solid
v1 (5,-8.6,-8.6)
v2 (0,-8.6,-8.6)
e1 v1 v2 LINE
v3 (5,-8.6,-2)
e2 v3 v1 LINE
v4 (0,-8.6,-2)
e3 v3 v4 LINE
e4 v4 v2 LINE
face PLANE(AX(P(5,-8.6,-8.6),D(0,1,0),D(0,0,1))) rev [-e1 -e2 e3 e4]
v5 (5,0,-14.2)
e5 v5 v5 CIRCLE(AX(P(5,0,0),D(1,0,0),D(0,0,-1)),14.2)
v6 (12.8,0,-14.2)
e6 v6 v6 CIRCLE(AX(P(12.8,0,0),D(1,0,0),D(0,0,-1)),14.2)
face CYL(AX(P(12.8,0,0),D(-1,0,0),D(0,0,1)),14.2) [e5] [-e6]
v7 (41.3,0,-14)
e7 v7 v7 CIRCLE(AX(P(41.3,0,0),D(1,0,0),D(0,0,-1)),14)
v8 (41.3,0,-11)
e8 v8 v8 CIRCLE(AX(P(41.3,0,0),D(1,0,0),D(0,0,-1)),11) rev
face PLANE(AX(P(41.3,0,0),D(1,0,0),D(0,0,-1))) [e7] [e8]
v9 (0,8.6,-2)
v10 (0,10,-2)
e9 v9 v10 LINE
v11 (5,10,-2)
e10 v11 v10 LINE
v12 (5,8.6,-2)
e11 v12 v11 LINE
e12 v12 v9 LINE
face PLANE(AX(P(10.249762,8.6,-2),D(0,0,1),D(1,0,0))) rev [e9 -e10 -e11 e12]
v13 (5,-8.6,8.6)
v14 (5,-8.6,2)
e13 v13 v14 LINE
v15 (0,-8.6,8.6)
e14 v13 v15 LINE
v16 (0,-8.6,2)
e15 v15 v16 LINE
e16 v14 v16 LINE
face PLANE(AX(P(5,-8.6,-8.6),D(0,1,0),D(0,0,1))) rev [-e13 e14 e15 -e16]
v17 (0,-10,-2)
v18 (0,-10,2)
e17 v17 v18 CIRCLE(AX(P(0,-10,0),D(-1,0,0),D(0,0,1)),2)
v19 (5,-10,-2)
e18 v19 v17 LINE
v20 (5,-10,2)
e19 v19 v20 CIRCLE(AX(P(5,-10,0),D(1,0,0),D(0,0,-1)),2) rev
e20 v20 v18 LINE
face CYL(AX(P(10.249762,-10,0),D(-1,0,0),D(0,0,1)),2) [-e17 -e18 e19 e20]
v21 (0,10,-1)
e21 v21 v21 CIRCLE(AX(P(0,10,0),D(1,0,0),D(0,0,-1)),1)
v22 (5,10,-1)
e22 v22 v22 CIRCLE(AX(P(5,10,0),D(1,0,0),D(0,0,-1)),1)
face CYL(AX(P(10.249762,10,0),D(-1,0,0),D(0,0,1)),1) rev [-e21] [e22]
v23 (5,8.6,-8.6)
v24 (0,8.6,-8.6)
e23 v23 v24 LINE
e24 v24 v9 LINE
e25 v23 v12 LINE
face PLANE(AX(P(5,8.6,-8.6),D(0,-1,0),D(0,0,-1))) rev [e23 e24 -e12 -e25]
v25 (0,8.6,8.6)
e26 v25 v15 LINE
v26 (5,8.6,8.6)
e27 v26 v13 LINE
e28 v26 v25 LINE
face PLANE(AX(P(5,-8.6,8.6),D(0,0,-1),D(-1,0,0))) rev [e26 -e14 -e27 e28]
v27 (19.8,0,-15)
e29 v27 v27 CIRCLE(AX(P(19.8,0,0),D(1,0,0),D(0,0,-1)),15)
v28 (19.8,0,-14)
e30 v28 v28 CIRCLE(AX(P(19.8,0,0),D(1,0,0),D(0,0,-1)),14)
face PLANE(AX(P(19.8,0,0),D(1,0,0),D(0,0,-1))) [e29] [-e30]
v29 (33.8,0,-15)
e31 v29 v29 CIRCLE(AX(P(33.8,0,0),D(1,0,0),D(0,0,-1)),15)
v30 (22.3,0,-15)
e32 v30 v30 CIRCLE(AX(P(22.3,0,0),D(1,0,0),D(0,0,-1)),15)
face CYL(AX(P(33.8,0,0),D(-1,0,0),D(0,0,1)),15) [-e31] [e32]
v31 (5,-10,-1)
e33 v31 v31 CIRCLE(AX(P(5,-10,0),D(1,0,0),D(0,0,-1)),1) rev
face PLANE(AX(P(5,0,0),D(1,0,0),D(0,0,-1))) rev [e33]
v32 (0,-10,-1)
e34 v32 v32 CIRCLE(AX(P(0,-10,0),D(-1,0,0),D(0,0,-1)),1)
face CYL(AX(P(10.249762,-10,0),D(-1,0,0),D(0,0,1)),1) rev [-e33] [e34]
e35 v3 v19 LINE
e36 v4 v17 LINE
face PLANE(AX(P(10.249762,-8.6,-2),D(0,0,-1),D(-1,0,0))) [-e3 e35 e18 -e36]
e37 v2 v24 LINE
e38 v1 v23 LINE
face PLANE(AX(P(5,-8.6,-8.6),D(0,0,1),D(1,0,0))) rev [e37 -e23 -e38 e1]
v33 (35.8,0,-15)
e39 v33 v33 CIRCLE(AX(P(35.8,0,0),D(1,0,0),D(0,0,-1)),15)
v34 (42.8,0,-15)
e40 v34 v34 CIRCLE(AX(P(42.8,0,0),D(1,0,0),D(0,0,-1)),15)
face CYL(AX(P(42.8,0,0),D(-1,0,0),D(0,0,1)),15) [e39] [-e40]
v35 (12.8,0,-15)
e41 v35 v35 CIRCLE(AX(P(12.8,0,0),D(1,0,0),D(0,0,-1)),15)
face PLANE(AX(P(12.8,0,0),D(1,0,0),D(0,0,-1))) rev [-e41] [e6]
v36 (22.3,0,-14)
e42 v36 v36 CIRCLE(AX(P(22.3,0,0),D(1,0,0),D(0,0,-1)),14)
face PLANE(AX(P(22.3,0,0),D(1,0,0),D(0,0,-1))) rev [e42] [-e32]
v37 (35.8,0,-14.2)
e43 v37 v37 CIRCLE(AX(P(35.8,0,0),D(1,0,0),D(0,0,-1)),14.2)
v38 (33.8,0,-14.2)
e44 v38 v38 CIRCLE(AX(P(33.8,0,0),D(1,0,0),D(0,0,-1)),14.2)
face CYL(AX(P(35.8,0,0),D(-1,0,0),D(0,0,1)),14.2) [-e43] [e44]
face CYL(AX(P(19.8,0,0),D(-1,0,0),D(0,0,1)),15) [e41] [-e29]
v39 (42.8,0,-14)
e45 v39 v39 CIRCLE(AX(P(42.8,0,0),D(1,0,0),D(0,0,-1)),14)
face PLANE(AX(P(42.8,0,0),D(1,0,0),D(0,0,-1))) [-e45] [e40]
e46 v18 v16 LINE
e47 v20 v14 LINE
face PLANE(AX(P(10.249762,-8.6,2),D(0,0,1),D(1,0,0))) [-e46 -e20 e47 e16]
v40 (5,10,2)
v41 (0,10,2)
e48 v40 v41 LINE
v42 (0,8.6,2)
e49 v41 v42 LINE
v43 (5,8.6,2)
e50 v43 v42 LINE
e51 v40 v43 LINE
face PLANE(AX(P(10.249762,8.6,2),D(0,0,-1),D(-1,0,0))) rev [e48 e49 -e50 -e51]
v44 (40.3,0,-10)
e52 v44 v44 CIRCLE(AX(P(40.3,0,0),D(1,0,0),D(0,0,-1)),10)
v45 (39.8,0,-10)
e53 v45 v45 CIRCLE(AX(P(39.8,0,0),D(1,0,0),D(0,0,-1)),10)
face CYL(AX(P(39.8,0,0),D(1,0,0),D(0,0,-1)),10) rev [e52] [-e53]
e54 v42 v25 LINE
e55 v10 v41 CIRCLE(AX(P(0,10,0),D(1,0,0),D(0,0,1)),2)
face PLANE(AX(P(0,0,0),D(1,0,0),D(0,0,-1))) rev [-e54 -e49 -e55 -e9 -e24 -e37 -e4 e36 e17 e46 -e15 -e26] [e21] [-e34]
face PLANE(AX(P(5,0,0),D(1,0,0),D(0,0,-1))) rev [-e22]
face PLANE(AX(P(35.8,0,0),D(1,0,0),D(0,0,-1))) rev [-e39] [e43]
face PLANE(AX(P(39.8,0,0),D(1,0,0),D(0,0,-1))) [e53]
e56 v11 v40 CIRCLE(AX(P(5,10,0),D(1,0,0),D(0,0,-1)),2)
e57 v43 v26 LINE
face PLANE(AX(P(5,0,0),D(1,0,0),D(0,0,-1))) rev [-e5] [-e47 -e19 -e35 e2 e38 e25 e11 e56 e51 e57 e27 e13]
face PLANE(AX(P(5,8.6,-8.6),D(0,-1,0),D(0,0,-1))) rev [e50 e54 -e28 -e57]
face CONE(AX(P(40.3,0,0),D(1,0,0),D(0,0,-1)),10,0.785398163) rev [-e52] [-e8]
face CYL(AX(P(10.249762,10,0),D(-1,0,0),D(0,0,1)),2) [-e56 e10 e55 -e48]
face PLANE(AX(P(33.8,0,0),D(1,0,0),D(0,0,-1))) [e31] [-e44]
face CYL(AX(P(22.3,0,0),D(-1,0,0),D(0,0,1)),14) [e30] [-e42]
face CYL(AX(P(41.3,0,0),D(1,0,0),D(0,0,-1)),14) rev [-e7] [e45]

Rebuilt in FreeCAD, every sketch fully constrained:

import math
import FreeCAD as App
import Part
import Sketcher
from FreeCAD import Vector


def edges_at(feature, points):
    """Names of the edges that pass closest to the given points."""
    edges = feature.Shape.Edges
    near = lambda p: min(range(len(edges)), key=lambda i: edges[i].distToShape(Part.Vertex(*p))[0])
    return sorted({f"Edge{near(p) + 1}" for p in points})

doc = App.newDocument("Part")
body = doc.addObject("PartDesign::Body", "Body")

# Sketch on YZ plane
sketch1 = body.newObject("Sketcher::SketchObject", "Sketch")
sketch1.AttachmentSupport = (doc.getObject("YZ_Plane"), [""])
sketch1.MapMode = "FlatFace"
sketch1.addGeometry(Part.LineSegment(Vector(8.6, 8.6, 0), Vector(-8.6, 8.6, 0)), False)
sketch1.addGeometry(Part.LineSegment(Vector(-8.6, 8.6, 0), Vector(-8.6, -8.6, 0)), False)
sketch1.addGeometry(Part.LineSegment(Vector(-8.6, -8.6, 0), Vector(8.6, -8.6, 0)), False)
sketch1.addGeometry(Part.LineSegment(Vector(8.6, -8.6, 0), Vector(8.6, 8.6, 0)), False)
sketch1.addConstraint(Sketcher.Constraint("Coincident", 0, 2, 1, 1))
sketch1.addConstraint(Sketcher.Constraint("Coincident", 1, 2, 2, 1))
sketch1.addConstraint(Sketcher.Constraint("Coincident", 2, 2, 3, 1))
sketch1.addConstraint(Sketcher.Constraint("Coincident", 3, 2, 0, 1))
sketch1.addConstraint(Sketcher.Constraint("Horizontal", 0))
sketch1.addConstraint(Sketcher.Constraint("Vertical", 1))
sketch1.addConstraint(Sketcher.Constraint("Horizontal", 2))
sketch1.addConstraint(Sketcher.Constraint("Vertical", 3))
sketch1.addConstraint(Sketcher.Constraint("Symmetric", 0, 2, 2, 2, -1, 1))
sketch1.addConstraint(Sketcher.Constraint("Equal", 2, 1))
sketch1.addConstraint(Sketcher.Constraint("DistanceX", 0, 2, 0, 1, 17.2))
pad1 = body.newObject("PartDesign::Pad", "Pad")
pad1.Profile = sketch1
pad1.Length = 5

# Sketch on YZ plane
sketch2 = body.newObject("Sketcher::SketchObject", "Sketch001")
sketch2.AttachmentSupport = (doc.getObject("YZ_Plane"), [""])
sketch2.MapMode = "FlatFace"
sketch2.addGeometry(Part.LineSegment(Vector(10, 2, 0), Vector(8.6, 2, 0)), False)
sketch2.addGeometry(Part.LineSegment(Vector(8.6, 2, 0), Vector(8.6, -2, 0)), False)
sketch2.addGeometry(Part.LineSegment(Vector(8.6, -2, 0), Vector(10, -2, 0)), False)
sketch2.addGeometry(Part.ArcOfCircle(Part.Circle(Vector(10, 0, 0), Vector(0, 0, 1), 2), math.radians(-90), math.radians(90)), False)
sketch2.addGeometry(Part.Circle(Vector(10, 0, 0), Vector(0, 0, 1), 1), False)
sketch2.addConstraint(Sketcher.Constraint("Coincident", 0, 2, 1, 1))
sketch2.addConstraint(Sketcher.Constraint("Coincident", 1, 2, 2, 1))
sketch2.addConstraint(Sketcher.Constraint("Tangent", 2, 2, 3, 1))
sketch2.addConstraint(Sketcher.Constraint("Tangent", 3, 2, 0, 1))
sketch2.addConstraint(Sketcher.Constraint("Horizontal", 0))
sketch2.addConstraint(Sketcher.Constraint("Vertical", 1))
sketch2.addConstraint(Sketcher.Constraint("Horizontal", 2))
sketch2.addConstraint(Sketcher.Constraint("Coincident", 4, 3, 3, 3))
sketch2.addConstraint(Sketcher.Constraint("PointOnObject", 3, 3, -1))
sketch2.addConstraint(Sketcher.Constraint("Diameter", 4, 2.0))
sketch2.addConstraint(Sketcher.Constraint("Radius", 3, 2.0))
sketch2.addConstraint(Sketcher.Constraint("DistanceX", 0, 2, 0, 1, 1.4))
sketch2.addConstraint(Sketcher.Constraint("DistanceX", -1, 1, 3, 3, 10.0))
pad2 = body.newObject("PartDesign::Pad", "Pad001")
pad2.Profile = sketch2
pad2.Length = 5
doc.recompute()

mirrored = body.newObject("PartDesign::Mirrored", "Mirrored")
mirrored.Originals = [pad2]
mirrored.MirrorPlane = (doc.getObject("XZ_Plane"), [""])
body.Tip = mirrored

# Sketch on YZ plane
sketch3 = body.newObject("Sketcher::SketchObject", "Sketch002")
sketch3.AttachmentSupport = (doc.getObject("YZ_Plane"), [""])
sketch3.MapMode = "FlatFace"
sketch3.AttachmentOffset = App.Placement(Vector(0, 0, 5), App.Rotation())
sketch3.addGeometry(Part.Circle(Vector(0, 0, 0), Vector(0, 0, 1), 14.2), False)
sketch3.addConstraint(Sketcher.Constraint("Coincident", 0, 3, -1, 1))
sketch3.addConstraint(Sketcher.Constraint("Diameter", 0, 28.4))
pad3 = body.newObject("PartDesign::Pad", "Pad002")
pad3.Profile = sketch3
pad3.Length = 7.8

# Sketch on YZ plane
sketch4 = body.newObject("Sketcher::SketchObject", "Sketch003")
sketch4.AttachmentSupport = (doc.getObject("YZ_Plane"), [""])
sketch4.MapMode = "FlatFace"
sketch4.AttachmentOffset = App.Placement(Vector(0, 0, 12.8), App.Rotation())
sketch4.addGeometry(Part.Circle(Vector(0, 0, 0), Vector(0, 0, 1), 15), False)
sketch4.addConstraint(Sketcher.Constraint("Coincident", 0, 3, -1, 1))
sketch4.addConstraint(Sketcher.Constraint("Diameter", 0, 30.0))
pad4 = body.newObject("PartDesign::Pad", "Pad003")
pad4.Profile = sketch4
pad4.Length = 7

# Sketch on YZ plane
sketch5 = body.newObject("Sketcher::SketchObject", "Sketch004")
sketch5.AttachmentSupport = (doc.getObject("YZ_Plane"), [""])
sketch5.MapMode = "FlatFace"
sketch5.AttachmentOffset = App.Placement(Vector(0, 0, 19.8), App.Rotation())
sketch5.addGeometry(Part.Circle(Vector(0, 0, 0), Vector(0, 0, 1), 14), False)
sketch5.addConstraint(Sketcher.Constraint("Coincident", 0, 3, -1, 1))
sketch5.addConstraint(Sketcher.Constraint("Diameter", 0, 28.0))
pad5 = body.newObject("PartDesign::Pad", "Pad004")
pad5.Profile = sketch5
pad5.Length = 2.5

# Sketch on YZ plane
sketch6 = body.newObject("Sketcher::SketchObject", "Sketch005")
sketch6.AttachmentSupport = (doc.getObject("YZ_Plane"), [""])
sketch6.MapMode = "FlatFace"
sketch6.AttachmentOffset = App.Placement(Vector(0, 0, 22.3), App.Rotation())
sketch6.addGeometry(Part.Circle(Vector(0, 0, 0), Vector(0, 0, 1), 15), False)
sketch6.addConstraint(Sketcher.Constraint("Coincident", 0, 3, -1, 1))
sketch6.addConstraint(Sketcher.Constraint("Diameter", 0, 30.0))
pad6 = body.newObject("PartDesign::Pad", "Pad005")
pad6.Profile = sketch6
pad6.Length = 11.5

# Sketch on YZ plane
sketch7 = body.newObject("Sketcher::SketchObject", "Sketch006")
sketch7.AttachmentSupport = (doc.getObject("YZ_Plane"), [""])
sketch7.MapMode = "FlatFace"
sketch7.AttachmentOffset = App.Placement(Vector(0, 0, 33.8), App.Rotation())
sketch7.addGeometry(Part.Circle(Vector(0, 0, 0), Vector(0, 0, 1), 14.2), False)
sketch7.addConstraint(Sketcher.Constraint("Coincident", 0, 3, -1, 1))
sketch7.addConstraint(Sketcher.Constraint("Diameter", 0, 28.4))
pad7 = body.newObject("PartDesign::Pad", "Pad006")
pad7.Profile = sketch7
pad7.Length = 2

# Sketch on YZ plane
sketch8 = body.newObject("Sketcher::SketchObject", "Sketch007")
sketch8.AttachmentSupport = (doc.getObject("YZ_Plane"), [""])
sketch8.MapMode = "FlatFace"
sketch8.AttachmentOffset = App.Placement(Vector(0, 0, 35.8), App.Rotation())
sketch8.addGeometry(Part.Circle(Vector(0, 0, 0), Vector(0, 0, 1), 15), False)
sketch8.addConstraint(Sketcher.Constraint("Coincident", 0, 3, -1, 1))
sketch8.addConstraint(Sketcher.Constraint("Diameter", 0, 30.0))
pad8 = body.newObject("PartDesign::Pad", "Pad007")
pad8.Profile = sketch8
pad8.Length = 7

# Sketch on YZ plane
sketch9 = body.newObject("Sketcher::SketchObject", "Sketch008")
sketch9.AttachmentSupport = (doc.getObject("YZ_Plane"), [""])
sketch9.MapMode = "FlatFace"
sketch9.AttachmentOffset = App.Placement(Vector(0, 0, 42.8), App.Rotation())
sketch9.addGeometry(Part.Circle(Vector(0, 0, 0), Vector(0, 0, 1), 14), False)
sketch9.addConstraint(Sketcher.Constraint("Coincident", 0, 3, -1, 1))
sketch9.addConstraint(Sketcher.Constraint("Diameter", 0, 28.0))
pocket1 = body.newObject("PartDesign::Pocket", "Pocket")
pocket1.Profile = sketch9
pocket1.Length = 1.5

# Sketch on YZ plane
sketch10 = body.newObject("Sketcher::SketchObject", "Sketch009")
sketch10.AttachmentSupport = (doc.getObject("YZ_Plane"), [""])
sketch10.MapMode = "FlatFace"
sketch10.AttachmentOffset = App.Placement(Vector(0, 0, 41.3), App.Rotation())
sketch10.addGeometry(Part.Circle(Vector(0, 0, 0), Vector(0, 0, 1), 10), False)
sketch10.addConstraint(Sketcher.Constraint("Coincident", 0, 3, -1, 1))
sketch10.addConstraint(Sketcher.Constraint("Diameter", 0, 20.0))
pocket2 = body.newObject("PartDesign::Pocket", "Pocket001")
pocket2.Profile = sketch10
pocket2.Length = 1.5
doc.recompute()

chamfer = body.newObject("PartDesign::Chamfer", "Chamfer")
chamfer.Base = (pocket2, edges_at(pocket2, [(41.3, 0, 10)]))
chamfer.Size = 1

doc.recompute()
